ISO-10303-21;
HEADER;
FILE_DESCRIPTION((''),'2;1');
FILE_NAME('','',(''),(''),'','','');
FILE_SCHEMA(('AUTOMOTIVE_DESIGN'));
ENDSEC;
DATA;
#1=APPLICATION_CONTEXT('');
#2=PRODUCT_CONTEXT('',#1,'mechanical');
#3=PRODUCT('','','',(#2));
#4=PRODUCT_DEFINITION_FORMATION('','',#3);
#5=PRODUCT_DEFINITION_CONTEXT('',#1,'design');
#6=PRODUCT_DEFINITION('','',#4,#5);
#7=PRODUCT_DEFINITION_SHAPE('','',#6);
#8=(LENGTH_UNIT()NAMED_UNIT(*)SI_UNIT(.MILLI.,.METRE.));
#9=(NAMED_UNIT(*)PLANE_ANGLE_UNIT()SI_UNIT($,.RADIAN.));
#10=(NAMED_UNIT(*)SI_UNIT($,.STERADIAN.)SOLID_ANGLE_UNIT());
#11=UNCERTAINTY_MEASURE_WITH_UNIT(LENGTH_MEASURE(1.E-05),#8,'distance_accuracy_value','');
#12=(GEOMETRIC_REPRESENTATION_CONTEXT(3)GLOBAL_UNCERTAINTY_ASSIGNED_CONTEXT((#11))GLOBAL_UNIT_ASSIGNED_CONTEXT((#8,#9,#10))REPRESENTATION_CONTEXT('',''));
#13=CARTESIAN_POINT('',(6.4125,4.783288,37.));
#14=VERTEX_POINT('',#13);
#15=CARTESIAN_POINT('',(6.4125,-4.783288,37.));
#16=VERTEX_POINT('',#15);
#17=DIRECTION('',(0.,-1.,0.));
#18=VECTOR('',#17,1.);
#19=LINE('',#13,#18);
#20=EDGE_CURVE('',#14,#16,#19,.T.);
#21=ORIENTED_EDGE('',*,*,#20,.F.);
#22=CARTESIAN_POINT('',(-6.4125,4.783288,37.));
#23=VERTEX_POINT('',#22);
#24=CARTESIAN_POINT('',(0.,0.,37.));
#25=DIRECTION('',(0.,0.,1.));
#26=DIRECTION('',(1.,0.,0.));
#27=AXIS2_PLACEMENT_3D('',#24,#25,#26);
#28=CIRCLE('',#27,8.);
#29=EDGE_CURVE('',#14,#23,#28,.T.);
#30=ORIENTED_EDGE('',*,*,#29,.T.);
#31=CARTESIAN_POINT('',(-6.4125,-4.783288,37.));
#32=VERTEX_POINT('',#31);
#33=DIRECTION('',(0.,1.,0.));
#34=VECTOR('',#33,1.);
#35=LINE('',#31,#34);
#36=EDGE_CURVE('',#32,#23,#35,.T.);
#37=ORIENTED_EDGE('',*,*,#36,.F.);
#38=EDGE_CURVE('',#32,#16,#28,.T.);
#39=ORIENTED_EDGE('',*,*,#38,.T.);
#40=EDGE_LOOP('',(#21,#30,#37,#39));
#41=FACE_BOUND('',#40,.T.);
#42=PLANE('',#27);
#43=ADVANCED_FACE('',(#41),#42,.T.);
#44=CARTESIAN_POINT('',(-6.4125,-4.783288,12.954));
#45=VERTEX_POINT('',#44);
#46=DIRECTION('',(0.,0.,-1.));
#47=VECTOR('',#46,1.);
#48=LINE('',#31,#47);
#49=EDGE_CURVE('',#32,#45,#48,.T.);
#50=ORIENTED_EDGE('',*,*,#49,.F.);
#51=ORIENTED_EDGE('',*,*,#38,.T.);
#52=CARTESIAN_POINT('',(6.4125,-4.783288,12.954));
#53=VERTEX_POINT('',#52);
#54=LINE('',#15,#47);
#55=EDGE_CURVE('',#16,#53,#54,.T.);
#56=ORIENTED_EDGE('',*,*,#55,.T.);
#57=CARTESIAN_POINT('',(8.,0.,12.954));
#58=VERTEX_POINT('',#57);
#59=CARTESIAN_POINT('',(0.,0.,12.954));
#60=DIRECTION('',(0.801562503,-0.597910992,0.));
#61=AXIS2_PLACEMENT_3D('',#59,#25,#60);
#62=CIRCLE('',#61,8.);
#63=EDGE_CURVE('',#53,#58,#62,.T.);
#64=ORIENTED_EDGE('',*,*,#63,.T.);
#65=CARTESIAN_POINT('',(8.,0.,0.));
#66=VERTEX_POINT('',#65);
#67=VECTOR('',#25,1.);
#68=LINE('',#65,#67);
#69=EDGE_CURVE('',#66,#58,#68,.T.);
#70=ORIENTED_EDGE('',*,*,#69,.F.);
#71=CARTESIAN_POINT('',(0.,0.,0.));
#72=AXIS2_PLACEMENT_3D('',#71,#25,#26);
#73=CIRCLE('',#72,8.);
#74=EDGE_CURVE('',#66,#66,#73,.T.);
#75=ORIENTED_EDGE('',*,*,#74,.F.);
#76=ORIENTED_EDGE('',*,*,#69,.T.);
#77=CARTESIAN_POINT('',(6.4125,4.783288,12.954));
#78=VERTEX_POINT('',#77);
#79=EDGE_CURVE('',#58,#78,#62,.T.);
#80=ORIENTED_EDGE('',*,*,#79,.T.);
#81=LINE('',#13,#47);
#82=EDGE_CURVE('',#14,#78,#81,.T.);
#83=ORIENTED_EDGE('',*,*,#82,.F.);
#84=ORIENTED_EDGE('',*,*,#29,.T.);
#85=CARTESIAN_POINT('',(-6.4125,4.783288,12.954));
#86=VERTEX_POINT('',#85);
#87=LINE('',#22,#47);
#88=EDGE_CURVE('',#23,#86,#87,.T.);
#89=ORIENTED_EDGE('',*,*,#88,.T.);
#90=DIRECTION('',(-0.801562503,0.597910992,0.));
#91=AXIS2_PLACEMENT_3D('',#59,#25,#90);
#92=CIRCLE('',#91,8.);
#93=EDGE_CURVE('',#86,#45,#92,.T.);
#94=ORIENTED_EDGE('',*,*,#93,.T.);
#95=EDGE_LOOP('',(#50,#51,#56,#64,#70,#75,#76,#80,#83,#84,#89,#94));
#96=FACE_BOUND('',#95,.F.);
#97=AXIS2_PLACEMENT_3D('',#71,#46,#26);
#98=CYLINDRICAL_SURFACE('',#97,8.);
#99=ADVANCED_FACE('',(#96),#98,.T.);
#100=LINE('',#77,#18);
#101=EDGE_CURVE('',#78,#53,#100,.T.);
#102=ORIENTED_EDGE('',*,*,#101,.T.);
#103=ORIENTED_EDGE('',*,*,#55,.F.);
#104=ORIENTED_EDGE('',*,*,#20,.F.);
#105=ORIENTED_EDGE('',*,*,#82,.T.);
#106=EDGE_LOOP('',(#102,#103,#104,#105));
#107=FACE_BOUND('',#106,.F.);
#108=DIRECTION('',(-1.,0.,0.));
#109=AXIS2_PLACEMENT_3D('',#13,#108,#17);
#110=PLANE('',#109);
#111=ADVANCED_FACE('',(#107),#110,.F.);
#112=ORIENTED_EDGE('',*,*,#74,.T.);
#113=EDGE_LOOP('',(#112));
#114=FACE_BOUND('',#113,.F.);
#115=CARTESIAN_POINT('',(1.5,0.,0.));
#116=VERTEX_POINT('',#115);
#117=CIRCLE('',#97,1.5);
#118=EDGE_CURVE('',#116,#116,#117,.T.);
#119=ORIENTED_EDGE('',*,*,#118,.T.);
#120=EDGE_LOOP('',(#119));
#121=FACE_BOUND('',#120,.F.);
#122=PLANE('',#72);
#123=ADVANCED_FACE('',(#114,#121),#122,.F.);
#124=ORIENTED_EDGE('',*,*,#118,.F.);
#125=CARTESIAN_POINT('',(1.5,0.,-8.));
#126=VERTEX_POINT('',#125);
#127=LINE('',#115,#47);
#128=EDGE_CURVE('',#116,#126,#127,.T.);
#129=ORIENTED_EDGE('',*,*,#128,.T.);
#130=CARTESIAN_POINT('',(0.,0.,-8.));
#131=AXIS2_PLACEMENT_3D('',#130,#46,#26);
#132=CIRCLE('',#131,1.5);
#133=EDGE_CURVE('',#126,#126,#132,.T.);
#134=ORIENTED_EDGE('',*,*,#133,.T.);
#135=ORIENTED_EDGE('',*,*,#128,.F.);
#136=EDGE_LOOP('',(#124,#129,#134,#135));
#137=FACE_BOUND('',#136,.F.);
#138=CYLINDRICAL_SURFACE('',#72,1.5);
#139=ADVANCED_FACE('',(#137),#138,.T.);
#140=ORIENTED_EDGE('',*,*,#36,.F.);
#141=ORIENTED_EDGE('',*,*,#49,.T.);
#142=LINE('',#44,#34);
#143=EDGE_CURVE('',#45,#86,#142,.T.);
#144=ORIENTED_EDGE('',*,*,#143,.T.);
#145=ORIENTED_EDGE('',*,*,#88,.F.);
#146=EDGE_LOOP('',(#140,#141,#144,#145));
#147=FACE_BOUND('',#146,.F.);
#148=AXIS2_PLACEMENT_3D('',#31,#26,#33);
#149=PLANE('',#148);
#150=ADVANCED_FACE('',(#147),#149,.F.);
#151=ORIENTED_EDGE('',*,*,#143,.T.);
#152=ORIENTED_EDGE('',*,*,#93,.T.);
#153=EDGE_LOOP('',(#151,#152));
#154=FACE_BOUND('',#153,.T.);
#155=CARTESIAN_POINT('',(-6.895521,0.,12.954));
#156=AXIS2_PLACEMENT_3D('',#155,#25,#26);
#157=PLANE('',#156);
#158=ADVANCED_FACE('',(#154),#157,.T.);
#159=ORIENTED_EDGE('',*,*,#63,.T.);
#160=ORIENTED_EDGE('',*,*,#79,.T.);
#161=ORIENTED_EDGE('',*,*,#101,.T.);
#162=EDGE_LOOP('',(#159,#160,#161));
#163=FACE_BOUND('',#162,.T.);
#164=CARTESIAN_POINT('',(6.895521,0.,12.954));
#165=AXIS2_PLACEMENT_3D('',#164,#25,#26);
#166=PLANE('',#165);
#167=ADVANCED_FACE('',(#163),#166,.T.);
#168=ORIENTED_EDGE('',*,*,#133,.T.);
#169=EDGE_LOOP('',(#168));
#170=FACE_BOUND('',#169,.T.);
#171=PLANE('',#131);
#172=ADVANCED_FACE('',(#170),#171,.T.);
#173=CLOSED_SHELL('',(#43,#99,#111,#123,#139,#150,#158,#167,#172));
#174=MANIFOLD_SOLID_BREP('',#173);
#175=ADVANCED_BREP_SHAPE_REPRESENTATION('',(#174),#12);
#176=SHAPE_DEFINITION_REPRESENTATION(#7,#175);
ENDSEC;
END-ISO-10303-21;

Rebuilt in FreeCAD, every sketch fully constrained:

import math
import FreeCAD as App
import Part
import Sketcher
from FreeCAD import Vector
Q = App.Units.Quantity

doc = App.newDocument("Part")
body = doc.addObject("PartDesign::Body", "Body")

sketch1 = body.newObject("Sketcher::SketchObject", "Sketch")
sketch1.AttachmentSupport = (doc.getObject("XY_Plane"), [""])
sketch1.MapMode = "FlatFace"
sketch1.addGeometry(Part.Circle(Vector(0, 0, 0), Vector(0, 0, 1), 8), False)
sketch1.addConstraint([
    Sketcher.Constraint("Coincident", 0, 3, -1, 1),
    Sketcher.Constraint("Diameter", 0, Q("16 mm")),
])
pad1 = body.newObject("PartDesign::Pad", "Pad")
pad1.Profile = sketch1
pad1.Length = 37

sketch2 = body.newObject("Sketcher::SketchObject", "Sketch001")
sketch2.AttachmentSupport = (doc.getObject("XY_Plane"), [""])
sketch2.MapMode = "FlatFace"
sketch2.addGeometry(Part.Circle(Vector(0, 0, 0), Vector(0, 0, 1), 1.5), False)
sketch2.addConstraint([
    Sketcher.Constraint("Coincident", 0, 3, -1, 1),
    Sketcher.Constraint("Diameter", 0, Q("3 mm")),
])
pad2 = body.newObject("PartDesign::Pad", "Pad001")
pad2.Profile = sketch2
pad2.Length = 8
pad2.Reversed = True

sketch3 = body.newObject("Sketcher::SketchObject", "Sketch002")
sketch3.AttachmentSupport = (doc.getObject("XY_Plane"), [""])
sketch3.MapMode = "FlatFace"
sketch3.AttachmentOffset = App.Placement(Vector(0, 0, 37), App.Rotation())
sketch3.addGeometry([
    Part.LineSegment(Vector(-6, -5, 0), Vector(-6, 5, 0)),
    Part.ArcOfCircle(Part.Circle(Vector(0, 0, 0), Vector(0, 0, 1), 8), math.radians(143), math.radians(217)),
    Part.ArcOfCircle(Part.Circle(Vector(0, 0, 0), Vector(0, 0, 1), 8), math.radians(-37), math.radians(37)),
    Part.LineSegment(Vector(6, 5, 0), Vector(6, -5, 0)),
], False)
sketch3.addConstraint([
    Sketcher.Constraint("Coincident", 0, 1, 1, 2),
    Sketcher.Constraint("Coincident", 1, 1, 0, 2),
    Sketcher.Constraint("Coincident", 2, 1, 3, 2),
    Sketcher.Constraint("Coincident", 3, 1, 2, 2),
    Sketcher.Constraint("Vertical", 0),
    Sketcher.Constraint("Vertical", 3),
    Sketcher.Constraint("Coincident", 1, 3, -1, 1),
    Sketcher.Constraint("Coincident", 2, 3, -1, 1),
    Sketcher.Constraint("Equal", 1, 2),
    Sketcher.Constraint("Horizontal", 0, 1, 2, 1),
    Sketcher.Constraint("Radius", 1, Q("8 mm")),
    Sketcher.Constraint("DistanceX", 0, 1, 2, 1, Q("12.825 mm")),
])
pocket1 = body.newObject("PartDesign::Pocket", "Pocket")
pocket1.Profile = sketch3
pocket1.Length = 24.046

doc.recompute()
